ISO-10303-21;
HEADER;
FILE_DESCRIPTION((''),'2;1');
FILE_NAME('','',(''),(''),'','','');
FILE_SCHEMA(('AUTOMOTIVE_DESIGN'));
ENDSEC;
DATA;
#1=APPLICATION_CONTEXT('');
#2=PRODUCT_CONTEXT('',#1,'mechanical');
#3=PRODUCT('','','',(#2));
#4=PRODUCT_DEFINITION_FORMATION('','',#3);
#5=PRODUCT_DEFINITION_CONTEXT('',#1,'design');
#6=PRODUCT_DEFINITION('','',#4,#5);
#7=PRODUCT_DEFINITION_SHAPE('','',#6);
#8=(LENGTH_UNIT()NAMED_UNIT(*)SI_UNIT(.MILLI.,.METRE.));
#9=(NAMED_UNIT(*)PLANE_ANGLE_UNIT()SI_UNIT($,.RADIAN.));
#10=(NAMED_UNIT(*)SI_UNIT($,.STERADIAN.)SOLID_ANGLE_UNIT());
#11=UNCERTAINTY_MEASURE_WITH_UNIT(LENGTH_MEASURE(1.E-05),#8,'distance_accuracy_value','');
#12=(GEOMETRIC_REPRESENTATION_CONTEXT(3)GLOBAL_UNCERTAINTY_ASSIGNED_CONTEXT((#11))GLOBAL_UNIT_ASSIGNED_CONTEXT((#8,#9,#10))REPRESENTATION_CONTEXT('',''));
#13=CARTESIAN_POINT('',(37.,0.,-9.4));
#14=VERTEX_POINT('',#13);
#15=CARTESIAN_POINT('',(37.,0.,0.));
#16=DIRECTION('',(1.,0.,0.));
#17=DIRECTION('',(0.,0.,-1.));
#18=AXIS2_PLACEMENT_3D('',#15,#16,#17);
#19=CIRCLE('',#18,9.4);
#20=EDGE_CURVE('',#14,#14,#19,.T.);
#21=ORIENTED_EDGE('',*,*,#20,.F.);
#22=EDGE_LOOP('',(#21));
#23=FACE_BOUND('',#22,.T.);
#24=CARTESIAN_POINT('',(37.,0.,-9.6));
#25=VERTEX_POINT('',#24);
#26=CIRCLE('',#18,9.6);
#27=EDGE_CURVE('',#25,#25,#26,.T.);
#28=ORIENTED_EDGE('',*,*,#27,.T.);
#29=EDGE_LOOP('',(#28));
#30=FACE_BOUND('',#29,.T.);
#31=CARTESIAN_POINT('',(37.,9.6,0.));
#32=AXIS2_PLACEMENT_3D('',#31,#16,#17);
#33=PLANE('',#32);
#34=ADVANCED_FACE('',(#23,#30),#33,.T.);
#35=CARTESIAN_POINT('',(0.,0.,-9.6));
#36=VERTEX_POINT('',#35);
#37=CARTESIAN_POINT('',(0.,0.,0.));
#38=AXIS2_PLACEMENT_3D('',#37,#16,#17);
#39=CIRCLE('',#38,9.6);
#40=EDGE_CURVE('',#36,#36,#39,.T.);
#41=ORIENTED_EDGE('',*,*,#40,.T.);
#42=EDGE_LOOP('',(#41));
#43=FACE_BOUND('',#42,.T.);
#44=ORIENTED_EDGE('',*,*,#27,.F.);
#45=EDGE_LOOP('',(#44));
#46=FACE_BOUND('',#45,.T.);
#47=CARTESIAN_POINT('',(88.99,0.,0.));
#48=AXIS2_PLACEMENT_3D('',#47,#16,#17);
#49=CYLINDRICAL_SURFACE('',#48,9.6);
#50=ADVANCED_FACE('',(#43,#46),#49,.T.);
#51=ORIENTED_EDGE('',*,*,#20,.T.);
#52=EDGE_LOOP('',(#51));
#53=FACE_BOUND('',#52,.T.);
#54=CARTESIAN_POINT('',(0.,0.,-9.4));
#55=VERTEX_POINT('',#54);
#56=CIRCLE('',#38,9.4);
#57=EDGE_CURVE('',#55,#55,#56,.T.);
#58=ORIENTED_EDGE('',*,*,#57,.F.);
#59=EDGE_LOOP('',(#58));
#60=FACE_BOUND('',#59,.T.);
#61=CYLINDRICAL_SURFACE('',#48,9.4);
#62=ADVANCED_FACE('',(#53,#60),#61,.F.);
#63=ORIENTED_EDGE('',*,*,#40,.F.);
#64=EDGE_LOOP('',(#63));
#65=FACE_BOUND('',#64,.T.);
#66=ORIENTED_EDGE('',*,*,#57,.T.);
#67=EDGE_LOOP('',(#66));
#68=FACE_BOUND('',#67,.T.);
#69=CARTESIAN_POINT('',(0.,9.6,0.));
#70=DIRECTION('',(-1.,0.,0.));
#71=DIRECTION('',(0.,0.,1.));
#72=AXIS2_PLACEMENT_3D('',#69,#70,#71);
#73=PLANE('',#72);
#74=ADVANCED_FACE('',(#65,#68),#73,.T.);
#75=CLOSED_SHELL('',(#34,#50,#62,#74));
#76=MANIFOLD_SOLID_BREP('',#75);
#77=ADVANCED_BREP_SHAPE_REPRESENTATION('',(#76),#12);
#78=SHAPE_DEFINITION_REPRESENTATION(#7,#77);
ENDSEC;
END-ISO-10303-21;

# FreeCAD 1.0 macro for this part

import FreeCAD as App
import Part
import Sketcher
from FreeCAD import Vector
Q = App.Units.Quantity

doc = App.newDocument("Part")
body = doc.addObject("PartDesign::Body", "Body")

# Sketch on XY plane
sketch1 = body.newObject("Sketcher::SketchObject", "Sketch")
sketch1.AttachmentSupport = (doc.getObject("XY_Plane"), [""])
sketch1.MapMode = "FlatFace"
sketch1.addGeometry([
    Part.LineSegment(Vector(0, 9.6, 0), Vector(0, 9.4, 0)),
    Part.LineSegment(Vector(0, 9.4, 0), Vector(37, 9.4, 0)),
    Part.LineSegment(Vector(37, 9.4, 0), Vector(37, 9.6, 0)),
    Part.LineSegment(Vector(37, 9.6, 0), Vector(0, 9.6, 0)),
], False)
sketch1.addConstraint([
    Sketcher.Constraint("Coincident", 0, 2, 1, 1),
    Sketcher.Constraint("Coincident", 1, 2, 2, 1),
    Sketcher.Constraint("Coincident", 2, 2, 3, 1),
    Sketcher.Constraint("Coincident", 3, 2, 0, 1),
    Sketcher.Constraint("Vertical", 0),
    Sketcher.Constraint("Horizontal", 1),
    Sketcher.Constraint("Vertical", 2),
    Sketcher.Constraint("Horizontal", 3),
    Sketcher.Constraint("PointOnObject", 0, 2, -2),
    Sketcher.Constraint("DistanceX", 1, 1, 1, 2, Q("37 mm")),
    Sketcher.Constraint("DistanceY", 0, 2, 0, 1, Q("0.2 mm")),
    Sketcher.Constraint("DistanceY", -1, 1, 0, 2, Q("9.4 mm")),
])
revolution = body.newObject("PartDesign::Revolution", "Revolution")
revolution.Profile = sketch1
revolution.ReferenceAxis = (sketch1, ["H_Axis"])
revolution.Angle = 360

doc.recompute()
